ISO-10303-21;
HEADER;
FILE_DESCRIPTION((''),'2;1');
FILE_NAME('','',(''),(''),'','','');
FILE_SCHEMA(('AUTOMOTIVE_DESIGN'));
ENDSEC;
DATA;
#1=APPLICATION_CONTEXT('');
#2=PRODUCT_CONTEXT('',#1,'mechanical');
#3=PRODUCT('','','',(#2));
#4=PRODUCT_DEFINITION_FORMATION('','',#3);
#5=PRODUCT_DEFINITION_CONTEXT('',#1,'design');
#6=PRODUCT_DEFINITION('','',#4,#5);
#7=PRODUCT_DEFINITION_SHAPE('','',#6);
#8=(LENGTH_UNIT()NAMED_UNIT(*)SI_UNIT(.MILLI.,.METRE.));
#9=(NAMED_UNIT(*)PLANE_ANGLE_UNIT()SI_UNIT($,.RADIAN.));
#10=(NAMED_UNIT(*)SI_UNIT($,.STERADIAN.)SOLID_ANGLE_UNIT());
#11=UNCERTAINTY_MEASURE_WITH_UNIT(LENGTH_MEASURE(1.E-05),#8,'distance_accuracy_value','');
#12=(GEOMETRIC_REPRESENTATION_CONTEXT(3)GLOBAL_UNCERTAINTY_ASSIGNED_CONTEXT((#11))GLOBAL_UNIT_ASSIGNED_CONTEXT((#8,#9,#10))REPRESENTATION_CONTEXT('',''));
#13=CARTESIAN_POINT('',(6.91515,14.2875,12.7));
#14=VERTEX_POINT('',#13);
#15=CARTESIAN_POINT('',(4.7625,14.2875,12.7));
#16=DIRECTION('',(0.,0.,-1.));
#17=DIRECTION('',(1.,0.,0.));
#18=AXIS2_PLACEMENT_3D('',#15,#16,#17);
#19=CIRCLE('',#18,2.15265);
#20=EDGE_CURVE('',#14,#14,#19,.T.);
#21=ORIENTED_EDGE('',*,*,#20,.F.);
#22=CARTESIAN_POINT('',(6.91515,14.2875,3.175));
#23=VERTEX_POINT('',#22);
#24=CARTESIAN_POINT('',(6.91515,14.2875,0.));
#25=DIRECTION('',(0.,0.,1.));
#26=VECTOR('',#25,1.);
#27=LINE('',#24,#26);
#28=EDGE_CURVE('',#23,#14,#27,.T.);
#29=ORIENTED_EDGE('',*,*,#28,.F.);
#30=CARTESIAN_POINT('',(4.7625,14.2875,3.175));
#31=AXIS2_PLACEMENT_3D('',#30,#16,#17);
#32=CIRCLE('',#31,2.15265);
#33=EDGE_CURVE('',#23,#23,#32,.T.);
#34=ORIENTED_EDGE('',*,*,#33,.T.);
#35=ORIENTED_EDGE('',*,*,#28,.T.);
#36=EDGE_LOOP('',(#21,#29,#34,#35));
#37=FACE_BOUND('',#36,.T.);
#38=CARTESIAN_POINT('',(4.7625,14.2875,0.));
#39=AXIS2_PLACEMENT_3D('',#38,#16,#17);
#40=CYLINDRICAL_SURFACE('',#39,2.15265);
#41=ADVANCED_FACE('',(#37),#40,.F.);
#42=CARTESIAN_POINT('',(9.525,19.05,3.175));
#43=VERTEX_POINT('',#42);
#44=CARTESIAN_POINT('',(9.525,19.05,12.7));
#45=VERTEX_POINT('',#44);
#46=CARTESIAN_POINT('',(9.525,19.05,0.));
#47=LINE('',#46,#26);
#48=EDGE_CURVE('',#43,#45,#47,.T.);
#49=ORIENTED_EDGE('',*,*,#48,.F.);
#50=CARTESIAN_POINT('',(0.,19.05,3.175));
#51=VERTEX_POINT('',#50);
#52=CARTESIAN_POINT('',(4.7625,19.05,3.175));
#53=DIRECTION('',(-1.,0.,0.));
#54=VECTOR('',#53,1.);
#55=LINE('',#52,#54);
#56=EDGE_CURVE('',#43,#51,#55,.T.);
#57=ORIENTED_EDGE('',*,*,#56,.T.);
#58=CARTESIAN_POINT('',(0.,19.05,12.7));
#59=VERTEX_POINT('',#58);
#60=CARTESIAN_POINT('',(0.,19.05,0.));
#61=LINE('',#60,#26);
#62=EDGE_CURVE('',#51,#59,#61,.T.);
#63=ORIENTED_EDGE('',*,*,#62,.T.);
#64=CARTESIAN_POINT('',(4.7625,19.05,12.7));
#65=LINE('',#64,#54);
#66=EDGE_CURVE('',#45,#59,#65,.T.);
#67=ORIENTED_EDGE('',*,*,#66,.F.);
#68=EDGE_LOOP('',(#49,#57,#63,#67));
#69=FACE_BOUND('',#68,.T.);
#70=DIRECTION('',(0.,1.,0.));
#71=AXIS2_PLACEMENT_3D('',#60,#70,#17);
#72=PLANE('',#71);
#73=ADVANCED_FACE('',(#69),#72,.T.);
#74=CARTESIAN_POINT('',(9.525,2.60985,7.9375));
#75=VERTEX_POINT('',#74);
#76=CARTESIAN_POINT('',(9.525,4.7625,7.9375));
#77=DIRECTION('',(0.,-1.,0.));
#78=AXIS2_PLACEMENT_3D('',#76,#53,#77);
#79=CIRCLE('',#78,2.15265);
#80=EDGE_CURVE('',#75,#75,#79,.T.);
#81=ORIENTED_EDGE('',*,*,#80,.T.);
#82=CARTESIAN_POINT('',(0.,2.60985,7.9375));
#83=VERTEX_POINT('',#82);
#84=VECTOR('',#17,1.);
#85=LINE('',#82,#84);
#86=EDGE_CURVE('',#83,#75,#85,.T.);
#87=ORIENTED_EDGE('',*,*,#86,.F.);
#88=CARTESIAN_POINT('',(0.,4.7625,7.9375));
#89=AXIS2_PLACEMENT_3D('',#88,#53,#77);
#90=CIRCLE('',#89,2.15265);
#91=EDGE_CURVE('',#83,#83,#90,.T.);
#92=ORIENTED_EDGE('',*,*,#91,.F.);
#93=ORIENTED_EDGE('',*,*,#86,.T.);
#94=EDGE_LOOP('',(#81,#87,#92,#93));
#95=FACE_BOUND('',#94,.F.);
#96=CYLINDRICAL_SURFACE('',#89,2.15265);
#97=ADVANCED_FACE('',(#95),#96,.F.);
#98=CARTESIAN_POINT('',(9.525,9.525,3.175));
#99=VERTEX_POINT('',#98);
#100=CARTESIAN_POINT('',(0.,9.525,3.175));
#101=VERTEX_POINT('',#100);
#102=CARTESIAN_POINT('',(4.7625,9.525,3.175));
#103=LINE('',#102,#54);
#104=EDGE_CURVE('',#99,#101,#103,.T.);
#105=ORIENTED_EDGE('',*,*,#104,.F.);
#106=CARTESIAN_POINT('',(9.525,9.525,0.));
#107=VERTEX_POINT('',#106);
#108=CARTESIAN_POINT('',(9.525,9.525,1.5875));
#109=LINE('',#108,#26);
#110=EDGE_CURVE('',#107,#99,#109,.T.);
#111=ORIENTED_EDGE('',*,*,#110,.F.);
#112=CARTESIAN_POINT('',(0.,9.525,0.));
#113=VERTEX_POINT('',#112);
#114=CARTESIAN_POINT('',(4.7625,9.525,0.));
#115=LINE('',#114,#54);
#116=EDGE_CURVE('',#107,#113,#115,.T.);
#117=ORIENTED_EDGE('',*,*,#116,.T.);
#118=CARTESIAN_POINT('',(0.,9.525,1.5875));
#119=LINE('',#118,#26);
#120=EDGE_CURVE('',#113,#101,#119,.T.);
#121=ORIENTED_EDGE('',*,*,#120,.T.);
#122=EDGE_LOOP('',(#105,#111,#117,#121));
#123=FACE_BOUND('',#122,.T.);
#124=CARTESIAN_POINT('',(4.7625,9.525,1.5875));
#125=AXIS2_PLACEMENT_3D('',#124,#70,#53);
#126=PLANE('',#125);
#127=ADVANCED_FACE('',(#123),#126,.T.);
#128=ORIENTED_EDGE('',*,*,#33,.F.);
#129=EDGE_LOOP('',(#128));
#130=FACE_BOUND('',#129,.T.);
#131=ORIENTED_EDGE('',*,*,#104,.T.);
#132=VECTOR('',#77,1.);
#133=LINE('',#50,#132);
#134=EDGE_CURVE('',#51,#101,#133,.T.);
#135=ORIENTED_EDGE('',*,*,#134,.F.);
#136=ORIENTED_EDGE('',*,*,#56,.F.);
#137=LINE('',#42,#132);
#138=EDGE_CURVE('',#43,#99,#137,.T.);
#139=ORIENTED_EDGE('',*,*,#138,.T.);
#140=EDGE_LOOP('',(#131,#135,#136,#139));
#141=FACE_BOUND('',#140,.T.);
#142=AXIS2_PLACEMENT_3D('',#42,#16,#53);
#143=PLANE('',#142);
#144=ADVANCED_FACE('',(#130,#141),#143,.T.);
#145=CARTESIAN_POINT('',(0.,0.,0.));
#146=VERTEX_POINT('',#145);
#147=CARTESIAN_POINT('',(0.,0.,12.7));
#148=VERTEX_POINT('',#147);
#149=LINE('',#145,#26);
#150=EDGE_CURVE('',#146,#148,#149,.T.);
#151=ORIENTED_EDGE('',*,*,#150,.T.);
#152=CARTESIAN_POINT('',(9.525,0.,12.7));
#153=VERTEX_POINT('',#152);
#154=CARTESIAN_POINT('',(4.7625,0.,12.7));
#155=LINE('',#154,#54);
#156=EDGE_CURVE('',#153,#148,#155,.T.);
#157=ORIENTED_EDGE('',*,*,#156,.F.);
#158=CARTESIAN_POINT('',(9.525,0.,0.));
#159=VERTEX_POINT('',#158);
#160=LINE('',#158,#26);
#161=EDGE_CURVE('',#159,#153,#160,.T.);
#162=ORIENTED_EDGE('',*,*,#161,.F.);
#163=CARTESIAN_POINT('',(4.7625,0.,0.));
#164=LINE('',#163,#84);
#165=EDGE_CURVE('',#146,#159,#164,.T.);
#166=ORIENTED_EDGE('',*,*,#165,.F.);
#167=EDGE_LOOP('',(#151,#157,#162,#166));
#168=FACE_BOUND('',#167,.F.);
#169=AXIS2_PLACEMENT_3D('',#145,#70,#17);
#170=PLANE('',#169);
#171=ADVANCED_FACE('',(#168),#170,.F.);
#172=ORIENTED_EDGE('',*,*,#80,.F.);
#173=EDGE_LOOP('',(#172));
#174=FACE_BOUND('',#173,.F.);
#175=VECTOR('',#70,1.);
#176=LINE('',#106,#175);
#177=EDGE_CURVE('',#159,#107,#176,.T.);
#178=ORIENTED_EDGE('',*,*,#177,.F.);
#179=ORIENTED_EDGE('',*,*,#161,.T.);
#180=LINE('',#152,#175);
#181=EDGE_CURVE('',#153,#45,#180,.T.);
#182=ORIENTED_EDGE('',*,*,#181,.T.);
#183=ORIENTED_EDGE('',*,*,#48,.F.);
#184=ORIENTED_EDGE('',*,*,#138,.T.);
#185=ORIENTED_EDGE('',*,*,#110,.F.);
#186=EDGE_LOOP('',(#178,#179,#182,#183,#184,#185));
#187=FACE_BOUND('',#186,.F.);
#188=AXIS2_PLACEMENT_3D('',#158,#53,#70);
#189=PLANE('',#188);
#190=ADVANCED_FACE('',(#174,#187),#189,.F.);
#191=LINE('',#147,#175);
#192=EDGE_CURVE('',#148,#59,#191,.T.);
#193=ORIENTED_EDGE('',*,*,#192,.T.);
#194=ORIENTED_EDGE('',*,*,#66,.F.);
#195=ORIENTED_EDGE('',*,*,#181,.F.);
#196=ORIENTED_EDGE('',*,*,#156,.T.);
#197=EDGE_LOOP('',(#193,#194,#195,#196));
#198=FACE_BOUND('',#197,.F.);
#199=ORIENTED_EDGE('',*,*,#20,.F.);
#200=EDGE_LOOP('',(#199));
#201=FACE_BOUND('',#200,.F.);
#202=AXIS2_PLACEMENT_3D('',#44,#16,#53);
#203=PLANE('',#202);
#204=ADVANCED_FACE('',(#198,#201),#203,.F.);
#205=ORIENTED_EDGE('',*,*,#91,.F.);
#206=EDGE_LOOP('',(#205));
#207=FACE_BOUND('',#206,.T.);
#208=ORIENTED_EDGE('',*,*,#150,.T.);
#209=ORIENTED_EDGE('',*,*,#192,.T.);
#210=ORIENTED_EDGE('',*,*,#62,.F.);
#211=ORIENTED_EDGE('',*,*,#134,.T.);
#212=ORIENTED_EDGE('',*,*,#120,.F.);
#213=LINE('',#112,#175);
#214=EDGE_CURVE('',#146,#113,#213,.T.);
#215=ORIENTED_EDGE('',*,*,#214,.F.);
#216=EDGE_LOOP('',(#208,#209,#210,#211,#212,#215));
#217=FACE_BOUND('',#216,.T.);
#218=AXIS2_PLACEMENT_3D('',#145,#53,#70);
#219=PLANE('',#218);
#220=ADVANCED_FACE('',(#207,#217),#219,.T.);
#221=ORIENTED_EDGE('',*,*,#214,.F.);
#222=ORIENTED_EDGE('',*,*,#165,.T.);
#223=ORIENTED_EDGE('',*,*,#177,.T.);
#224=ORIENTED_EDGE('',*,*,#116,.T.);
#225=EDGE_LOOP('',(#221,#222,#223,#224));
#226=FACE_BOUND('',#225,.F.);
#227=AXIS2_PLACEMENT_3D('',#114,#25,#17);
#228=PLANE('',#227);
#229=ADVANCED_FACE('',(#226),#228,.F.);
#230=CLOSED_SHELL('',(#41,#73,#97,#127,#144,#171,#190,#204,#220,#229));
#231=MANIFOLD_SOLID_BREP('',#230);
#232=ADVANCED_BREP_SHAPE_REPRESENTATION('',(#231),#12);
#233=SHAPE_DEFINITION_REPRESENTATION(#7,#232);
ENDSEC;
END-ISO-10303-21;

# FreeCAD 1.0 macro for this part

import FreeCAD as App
import Part
import Sketcher

V = App.Vector
Q = App.Units.Quantity


def add_polygon(sketch, points):
    """Adds a closed chain of lines whose ends are joined by coincident constraints."""
    first, n = sketch.GeometryCount, len(points)
    for a, b in zip(points, points[1:] + points[:1]):
        sketch.addGeometry(Part.LineSegment(App.Vector(*a, 0), App.Vector(*b, 0)), False)
    for i in range(n):
        sketch.addConstraint(Sketcher.Constraint("Coincident", first + i, 2, first + (i + 1) % n, 1))

doc = App.newDocument("Part")
body = doc.addObject("PartDesign::Body", "Body")

sketch1 = body.newObject("Sketcher::SketchObject", "Sketch")
sketch1.AttachmentSupport = (doc.getObject("XY_Plane"), [""])
sketch1.MapMode = "FlatFace"
add_polygon(sketch1, [(0, 19.1), (0, 0), (9.5, 0), (9.5, 19.1)])
sketch1.addGeometry(Part.Circle(V(4.8, 14.3, 0), V(0, 0, 1), 2.2), False)
sketch1.addConstraint([
    Sketcher.Constraint("Vertical", 0),
    Sketcher.Constraint("Horizontal", 1),
    Sketcher.Constraint("Vertical", 2),
    Sketcher.Constraint("Horizontal", 3),
    Sketcher.Constraint("Coincident", 0, 2, -1, 1),
    Sketcher.Constraint("Diameter", 4, Q("0.1695 in")),
    Sketcher.Constraint("DistanceY", 0, 2, 0, 1, Q("0.75 in")),
    Sketcher.Constraint("DistanceX", 1, 1, 1, 2, Q("0.375 in")),
    Sketcher.Constraint("DistanceX", -1, 1, 4, 3, Q("0.1875 in")),
    Sketcher.Constraint("DistanceY", -1, 1, 4, 3, Q("0.5625 in")),
])
pad1 = body.newObject("PartDesign::Pad", "Pad")
pad1.Profile = sketch1
pad1.Length = Q("0.625 in")

sketch2 = body.newObject("Sketcher::SketchObject", "Sketch001")
sketch2.AttachmentSupport = (doc.getObject("XZ_Plane"), [""])
sketch2.MapMode = "FlatFace"
sketch2.AttachmentOffset = App.Placement(V(0, 0, -0.75 * 25.4), App.Rotation())
add_polygon(sketch2, [(9.5, 3.2), (9.5, 0), (0, 0), (0, 3.2)])
add_polygon(sketch2, [(9.5, 15.9), (9.5, 12.7), (0, 12.7), (0, 15.9)])
sketch2.addConstraint([
    Sketcher.Constraint("Vertical", 0),
    Sketcher.Constraint("Horizontal", 1),
    Sketcher.Constraint("Vertical", 2),
    Sketcher.Constraint("Horizontal", 3),
    Sketcher.Constraint("Vertical", 4),
    Sketcher.Constraint("Horizontal", 5),
    Sketcher.Constraint("Vertical", 6),
    Sketcher.Constraint("Horizontal", 7),
    Sketcher.Constraint("Coincident", 1, 2, -1, 1),
    Sketcher.Constraint("PointOnObject", 5, 2, -2),
    Sketcher.Constraint("Vertical", 3, 2, 4, 2),
    Sketcher.Constraint("Equal", 2, 4),
    Sketcher.Constraint("DistanceY", -1, 1, 4, 2, Q("0.5 in")),
    Sketcher.Constraint("DistanceX", 1, 2, 1, 1, Q("0.375 in")),
    Sketcher.Constraint("DistanceY", 0, 2, 0, 1, Q("0.125 in")),
])
pocket1 = body.newObject("PartDesign::Pocket", "Pocket")
pocket1.Profile = sketch2
pocket1.Length = Q("0.375 in")
pocket1.Reversed = True

sketch3 = body.newObject("Sketcher::SketchObject", "Sketch002")
sketch3.AttachmentSupport = (doc.getObject("YZ_Plane"), [""])
sketch3.MapMode = "FlatFace"
sketch3.addGeometry(Part.Circle(V(4.8, 7.9, 0), V(0, 0, 1), 2.2), False)
sketch3.addConstraint([
    Sketcher.Constraint("Diameter", 0, Q("0.1695 in")),
    Sketcher.Constraint("DistanceX", -1, 1, 0, 3, Q("0.1875 in")),
    Sketcher.Constraint("DistanceY", -1, 1, 0, 3, Q("0.3125 in")),
])
pocket2 = body.newObject("PartDesign::Pocket", "Pocket001")
pocket2.Profile = sketch3
pocket2.Type = "ThroughAll"
pocket2.Reversed = True

sketch4 = body.newObject("Sketcher::SketchObject", "Sketch003")
sketch4.AttachmentSupport = (doc.getObject("XZ_Plane"), [""])
sketch4.MapMode = "FlatFace"
sketch4.AttachmentOffset = App.Placement(V(0, 0, -0.375 * 25.4), App.Rotation())
add_polygon(sketch4, [(9.5, 15.9), (9.5, 12.7), (0, 12.7), (0, 15.9)])
sketch4.addConstraint([
    Sketcher.Constraint("Vertical", 0),
    Sketcher.Constraint("Horizontal", 1),
    Sketcher.Constraint("Vertical", 2),
    Sketcher.Constraint("Horizontal", 3),
    Sketcher.Constraint("PointOnObject", 1, 2, -2),
    Sketcher.Constraint("DistanceY", -1, 1, 0, 2, Q("0.5 in")),
    Sketcher.Constraint("DistanceX", 1, 2, 1, 1, Q("0.375 in")),
    Sketcher.Constraint("DistanceY", 0, 2, 0, 1, Q("0.125 in")),
])
pocket3 = body.newObject("PartDesign::Pocket", "Pocket002")
pocket3.Profile = sketch4
pocket3.Type = "ThroughAll"
pocket3.Reversed = True

doc.recompute()
